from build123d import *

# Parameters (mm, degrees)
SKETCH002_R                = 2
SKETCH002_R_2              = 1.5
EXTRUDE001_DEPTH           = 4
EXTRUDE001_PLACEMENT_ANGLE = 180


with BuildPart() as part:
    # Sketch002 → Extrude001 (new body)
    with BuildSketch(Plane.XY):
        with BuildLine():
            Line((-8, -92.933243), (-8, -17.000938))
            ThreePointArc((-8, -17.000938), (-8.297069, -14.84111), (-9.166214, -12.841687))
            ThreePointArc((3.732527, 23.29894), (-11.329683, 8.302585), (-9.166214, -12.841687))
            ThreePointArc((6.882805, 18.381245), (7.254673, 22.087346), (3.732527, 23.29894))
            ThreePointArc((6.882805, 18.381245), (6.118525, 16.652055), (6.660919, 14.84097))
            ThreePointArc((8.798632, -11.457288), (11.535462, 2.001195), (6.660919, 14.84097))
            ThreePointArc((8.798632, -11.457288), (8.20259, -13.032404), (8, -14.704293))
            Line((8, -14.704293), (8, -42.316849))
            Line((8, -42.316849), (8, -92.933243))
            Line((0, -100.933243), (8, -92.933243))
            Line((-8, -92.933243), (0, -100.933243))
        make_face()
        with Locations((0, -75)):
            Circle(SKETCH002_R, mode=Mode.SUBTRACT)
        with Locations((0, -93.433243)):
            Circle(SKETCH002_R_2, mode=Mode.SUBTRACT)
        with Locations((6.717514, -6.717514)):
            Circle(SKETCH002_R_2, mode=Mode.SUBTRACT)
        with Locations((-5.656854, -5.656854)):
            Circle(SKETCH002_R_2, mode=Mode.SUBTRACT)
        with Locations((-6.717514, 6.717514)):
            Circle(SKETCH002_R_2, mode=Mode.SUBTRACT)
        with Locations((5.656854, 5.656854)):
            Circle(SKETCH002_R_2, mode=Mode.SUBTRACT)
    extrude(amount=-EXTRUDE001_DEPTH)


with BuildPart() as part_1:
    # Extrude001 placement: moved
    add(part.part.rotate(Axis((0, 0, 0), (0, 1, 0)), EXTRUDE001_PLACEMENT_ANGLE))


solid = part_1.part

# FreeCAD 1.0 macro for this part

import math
import FreeCAD as App
import Part
import Sketcher

V = App.Vector
Q = App.Units.Quantity

doc = App.newDocument("Part")
body = doc.addObject("PartDesign::Body", "Body")

sketch1 = doc.addObject("Sketcher::SketchObject", "Sketch")
body.addObject(sketch1)
sketch1.AttachmentSupport = (doc.XY_Plane, [""])
sketch1.MapMode = "FlatFace"
sketch1.addGeometry([
    Part.LineSegment(V(-8, -17.000938, 0), V(-8, -92.933243, 0)),
    Part.LineSegment(V(-8, -92.933243, 0), V(0, -100.933243, 0)),
    Part.LineSegment(V(0, -100.933243, 0), V(8, -92.933243, 0)),
    Part.LineSegment(V(8, -92.933243, 0), V(8, -14.704293, 0)),
    Part.ArcOfCircle(Part.Circle(V(15.000019, -14.704297, 0), V(0, 0, 1), 7.000019), math.radians(152.363718), math.radians(179.99997)),
    Part.ArcOfCircle(Part.Circle(V(-13.083334, 0.000001, 0), V(0, 0, 1), 24.699998), math.radians(-27.63633), math.radians(36.930727)),
    Part.ArcOfCircle(Part.Circle(V(8.84318, 16.481288, 0), V(0, 0, 1), 2.730001), math.radians(135.896666), math.radians(216.930714)),
    Part.ArcOfCircle(Part.Circle(V(4.728548, 20.469109, 0), V(0, 0, 1), 3), math.radians(-44.103336), math.radians(109.390628)),
    Part.ArcOfCircle(Part.Circle(V(11.9331, 0, 0), V(0, 0, 1), 24.7), math.radians(109.390638), math.radians(211.325972)),
    Part.ArcOfCircle(Part.Circle(V(-15.999995, -17.000937, 0), V(0, 0, 1), 7.999995), math.radians(-0.00001), math.radians(31.325981)),
    Part.Circle(V(0, -93.433243, 0), V(0, 0, 1), 1.5),
    Part.Circle(V(0, -75, 0), V(0, 0, 1), 2),
    Part.Circle(V(6.717514, -6.717514, 0), V(0, 0, 1), 1.5),
    Part.Circle(V(5.656854, 5.656854, 0), V(0, 0, 1), 1.5),
    Part.Circle(V(-5.656854, -5.656854, 0), V(0, 0, 1), 1.5),
    Part.Circle(V(-6.717514, 6.717514, 0), V(0, 0, 1), 1.5),
], False)
sketch1.addConstraint([
    Sketcher.Constraint("Coincident", 0, 2, 1, 1),
    Sketcher.Constraint("Coincident", 1, 2, 2, 1),
    Sketcher.Constraint("Coincident", 2, 2, 3, 1),
    Sketcher.Constraint("Tangent", 3, 2, 4, 2),
    Sketcher.Constraint("Tangent", 4, 1, 5, 1),
    Sketcher.Constraint("Tangent", 5, 2, 6, 2),
    Sketcher.Constraint("Tangent", 6, 1, 7, 1),
    Sketcher.Constraint("Tangent", 7, 2, 8, 1),
    Sketcher.Constraint("Tangent", 8, 2, 9, 2),
    Sketcher.Constraint("Tangent", 9, 1, 0, 1),
    Sketcher.Constraint("Vertical", 0),
    Sketcher.Constraint("Vertical", 3),
    Sketcher.Constraint("Equal", 5, 8),
    Sketcher.Constraint("Equal", 10, 12),
    Sketcher.Constraint("Equal", 12, 13),
    Sketcher.Constraint("Equal", 13, 14),
    Sketcher.Constraint("Equal", 14, 15),
    Sketcher.Constraint("Symmetric", 13, 3, 14, 3, -1, 1),
    Sketcher.Constraint("Symmetric", 12, 3, 15, 3, -1, 1),
    Sketcher.Constraint("Symmetric", 0, 2, 2, 2, -2),
    Sketcher.Constraint("PointOnObject", 5, 3, -1),
    Sketcher.Constraint("PointOnObject", 8, 3, -1),
    Sketcher.Constraint("PointOnObject", 10, 3, -2),
    Sketcher.Constraint("PointOnObject", 11, 3, -2),
    Sketcher.Constraint("PointOnObject", 1, 2, -2),
    Sketcher.Constraint("Perpendicular", 1, 2),
    Sketcher.Constraint("Diameter", 10, Q("3 mm")),
    Sketcher.Constraint("Diameter", 11, Q("4 mm")),
    Sketcher.Constraint("Radius", 7, Q("3 mm")),
    Sketcher.Constraint("Radius", 5, Q("24.699998 mm")),
    Sketcher.Constraint("Radius", 6, Q("2.730001 mm")),
    Sketcher.Constraint("DistanceY", 11, 3, -1, 1, Q("75 mm")),
    Sketcher.Constraint("DistanceX", 0, 2, -1, 1, Q("8 mm")),
    Sketcher.Constraint("DistanceY", 10, 3, 0, 2, Q("0.5 mm")),
    Sketcher.Constraint("Radius", 4, Q("7.000019 mm")),
    Sketcher.Constraint("Radius", 9, Q("7.999995 mm")),
    Sketcher.Constraint("DistanceY", 3, 1, 3, 2, Q("78.22895 mm")),
    Sketcher.Constraint("DistanceX", -1, 1, 8, 3, Q("11.9331 mm")),
    Sketcher.Constraint("DistanceY", 0, 2, 0, 1, Q("75.932305 mm")),
    Sketcher.Constraint("DistanceX", -1, 1, 6, 3, Q("8.84318 mm")),
    Sketcher.Constraint("DistanceX", 5, 3, 12, 3, Q("19.800848 mm")),
    Sketcher.Constraint("DistanceX", 13, 3, 12, 3, Q("1.06066 mm")),
    Sketcher.Constraint("DistanceY", 12, 3, 14, 3, Q("1.06066 mm")),
    Sketcher.Constraint("DistanceY", 0, 2, 14, 3, Q("87.276389 mm")),
])
pad1 = doc.addObject("PartDesign::Pad", "Pad")
body.addObject(pad1)
pad1.Profile = sketch1
pad1.Length = 4
pad1.Reversed = True
body2 = doc.addObject("PartDesign::Body", "Body001")
doc.recompute()

body.Placement = App.Placement(V(0, 0, 0), App.Rotation(V(0, 1, 0), 180))
boolean = doc.addObject("PartDesign::Boolean", "Boolean")
body2.addObject(boolean)
boolean.Type = "Fuse"
boolean.addObjects([body])

doc.recompute()
